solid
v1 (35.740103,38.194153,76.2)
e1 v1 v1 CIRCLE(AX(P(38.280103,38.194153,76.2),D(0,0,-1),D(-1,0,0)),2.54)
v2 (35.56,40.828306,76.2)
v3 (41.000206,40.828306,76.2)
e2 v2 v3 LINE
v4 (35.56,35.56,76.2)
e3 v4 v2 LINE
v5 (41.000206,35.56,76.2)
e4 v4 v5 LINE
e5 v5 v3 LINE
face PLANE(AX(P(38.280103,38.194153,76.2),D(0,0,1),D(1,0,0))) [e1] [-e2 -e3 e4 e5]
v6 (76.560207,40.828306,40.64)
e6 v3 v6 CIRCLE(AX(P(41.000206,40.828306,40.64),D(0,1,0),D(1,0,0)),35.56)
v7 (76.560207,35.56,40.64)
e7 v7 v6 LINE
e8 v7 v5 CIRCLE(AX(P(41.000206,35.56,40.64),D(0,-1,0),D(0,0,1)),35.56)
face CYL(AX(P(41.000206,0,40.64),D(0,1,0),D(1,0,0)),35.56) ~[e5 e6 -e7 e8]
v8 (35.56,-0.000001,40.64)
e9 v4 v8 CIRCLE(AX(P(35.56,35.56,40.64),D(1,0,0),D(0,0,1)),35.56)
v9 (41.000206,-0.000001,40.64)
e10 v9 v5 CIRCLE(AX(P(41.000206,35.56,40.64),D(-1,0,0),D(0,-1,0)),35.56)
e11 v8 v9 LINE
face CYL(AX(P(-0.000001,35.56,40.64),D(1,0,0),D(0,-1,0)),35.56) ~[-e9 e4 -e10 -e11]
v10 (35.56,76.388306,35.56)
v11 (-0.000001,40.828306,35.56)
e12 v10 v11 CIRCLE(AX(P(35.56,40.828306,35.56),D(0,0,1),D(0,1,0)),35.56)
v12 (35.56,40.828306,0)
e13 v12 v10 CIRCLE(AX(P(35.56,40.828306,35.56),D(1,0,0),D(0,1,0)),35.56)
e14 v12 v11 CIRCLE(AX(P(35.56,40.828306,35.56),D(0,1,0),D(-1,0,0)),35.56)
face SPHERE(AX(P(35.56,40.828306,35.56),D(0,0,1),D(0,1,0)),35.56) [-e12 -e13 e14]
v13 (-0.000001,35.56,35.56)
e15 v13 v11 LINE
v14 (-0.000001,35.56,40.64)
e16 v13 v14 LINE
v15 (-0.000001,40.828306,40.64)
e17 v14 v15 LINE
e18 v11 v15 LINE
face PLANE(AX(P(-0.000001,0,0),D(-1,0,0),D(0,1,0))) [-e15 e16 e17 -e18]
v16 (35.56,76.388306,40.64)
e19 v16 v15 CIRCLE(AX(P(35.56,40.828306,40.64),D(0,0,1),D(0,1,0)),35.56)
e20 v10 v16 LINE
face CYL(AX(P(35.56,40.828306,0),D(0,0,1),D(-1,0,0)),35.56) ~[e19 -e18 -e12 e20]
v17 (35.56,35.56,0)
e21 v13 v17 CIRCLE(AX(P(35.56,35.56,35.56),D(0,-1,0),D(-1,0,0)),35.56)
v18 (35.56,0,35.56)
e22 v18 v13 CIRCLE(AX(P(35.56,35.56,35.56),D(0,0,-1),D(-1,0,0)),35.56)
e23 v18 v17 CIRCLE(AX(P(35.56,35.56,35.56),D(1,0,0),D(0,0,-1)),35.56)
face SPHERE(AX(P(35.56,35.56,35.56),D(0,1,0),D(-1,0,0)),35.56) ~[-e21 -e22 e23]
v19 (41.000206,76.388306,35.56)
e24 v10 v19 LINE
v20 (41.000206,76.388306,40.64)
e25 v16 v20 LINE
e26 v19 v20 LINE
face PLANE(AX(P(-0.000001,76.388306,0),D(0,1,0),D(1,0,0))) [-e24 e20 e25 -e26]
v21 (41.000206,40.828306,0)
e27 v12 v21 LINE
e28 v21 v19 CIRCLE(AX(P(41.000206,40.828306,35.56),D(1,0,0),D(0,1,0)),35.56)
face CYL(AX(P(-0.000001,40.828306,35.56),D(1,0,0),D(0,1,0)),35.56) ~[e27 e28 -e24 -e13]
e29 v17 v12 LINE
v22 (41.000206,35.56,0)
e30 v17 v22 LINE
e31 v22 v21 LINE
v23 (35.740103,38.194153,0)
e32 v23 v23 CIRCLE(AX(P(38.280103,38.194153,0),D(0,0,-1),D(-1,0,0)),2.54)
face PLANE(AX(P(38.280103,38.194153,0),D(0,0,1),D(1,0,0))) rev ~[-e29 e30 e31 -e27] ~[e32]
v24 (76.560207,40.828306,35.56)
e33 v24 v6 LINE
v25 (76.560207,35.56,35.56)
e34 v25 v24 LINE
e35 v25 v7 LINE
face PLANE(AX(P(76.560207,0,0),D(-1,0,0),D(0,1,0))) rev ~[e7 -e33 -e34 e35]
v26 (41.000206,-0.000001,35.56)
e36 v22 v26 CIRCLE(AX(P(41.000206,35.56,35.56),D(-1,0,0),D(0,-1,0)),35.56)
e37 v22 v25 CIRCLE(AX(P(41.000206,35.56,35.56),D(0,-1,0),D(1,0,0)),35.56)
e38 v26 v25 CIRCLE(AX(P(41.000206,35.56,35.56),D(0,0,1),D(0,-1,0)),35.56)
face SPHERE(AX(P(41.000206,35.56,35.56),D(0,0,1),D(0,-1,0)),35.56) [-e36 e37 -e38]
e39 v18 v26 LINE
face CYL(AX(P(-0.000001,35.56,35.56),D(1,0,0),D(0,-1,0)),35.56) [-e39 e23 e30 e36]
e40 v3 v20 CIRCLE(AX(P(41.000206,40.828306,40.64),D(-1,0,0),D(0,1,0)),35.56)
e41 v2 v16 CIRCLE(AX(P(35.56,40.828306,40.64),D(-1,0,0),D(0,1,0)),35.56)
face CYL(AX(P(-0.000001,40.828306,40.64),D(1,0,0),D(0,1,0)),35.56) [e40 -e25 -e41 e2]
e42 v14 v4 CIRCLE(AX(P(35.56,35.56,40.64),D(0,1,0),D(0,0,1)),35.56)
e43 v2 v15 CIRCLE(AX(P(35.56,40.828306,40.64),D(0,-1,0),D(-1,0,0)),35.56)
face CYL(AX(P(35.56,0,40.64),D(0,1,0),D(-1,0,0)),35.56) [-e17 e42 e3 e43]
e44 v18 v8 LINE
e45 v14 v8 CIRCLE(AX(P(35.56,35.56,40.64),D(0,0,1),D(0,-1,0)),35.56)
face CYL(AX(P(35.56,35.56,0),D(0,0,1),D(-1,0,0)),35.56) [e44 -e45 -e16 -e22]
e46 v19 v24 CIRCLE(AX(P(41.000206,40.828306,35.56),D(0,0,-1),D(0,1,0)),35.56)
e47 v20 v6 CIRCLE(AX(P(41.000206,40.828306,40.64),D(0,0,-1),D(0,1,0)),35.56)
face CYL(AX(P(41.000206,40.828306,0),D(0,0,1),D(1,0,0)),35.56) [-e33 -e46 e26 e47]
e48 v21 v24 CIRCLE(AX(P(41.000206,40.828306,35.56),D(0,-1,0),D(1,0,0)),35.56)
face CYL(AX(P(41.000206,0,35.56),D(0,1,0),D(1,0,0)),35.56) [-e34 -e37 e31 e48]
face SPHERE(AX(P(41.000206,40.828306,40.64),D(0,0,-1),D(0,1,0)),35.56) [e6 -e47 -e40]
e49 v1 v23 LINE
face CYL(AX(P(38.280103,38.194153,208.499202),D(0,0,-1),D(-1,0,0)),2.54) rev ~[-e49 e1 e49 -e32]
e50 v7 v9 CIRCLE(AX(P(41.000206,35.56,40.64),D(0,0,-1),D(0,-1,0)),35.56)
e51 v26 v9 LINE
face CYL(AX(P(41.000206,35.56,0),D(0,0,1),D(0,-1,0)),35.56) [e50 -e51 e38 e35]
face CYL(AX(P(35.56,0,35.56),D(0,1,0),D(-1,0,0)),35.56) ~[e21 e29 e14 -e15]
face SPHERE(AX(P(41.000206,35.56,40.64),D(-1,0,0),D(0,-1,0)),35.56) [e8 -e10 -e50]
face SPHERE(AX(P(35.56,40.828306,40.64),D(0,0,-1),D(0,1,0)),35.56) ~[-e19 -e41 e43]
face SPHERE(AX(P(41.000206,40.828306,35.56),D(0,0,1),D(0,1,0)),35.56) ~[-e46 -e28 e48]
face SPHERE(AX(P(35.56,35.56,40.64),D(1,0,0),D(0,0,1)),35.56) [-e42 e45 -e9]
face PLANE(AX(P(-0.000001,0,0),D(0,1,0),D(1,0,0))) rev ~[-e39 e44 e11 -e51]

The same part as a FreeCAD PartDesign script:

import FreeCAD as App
import Part
import Sketcher

V = App.Vector
Q = App.Units.Quantity

doc = App.newDocument("Part")
body = doc.addObject("PartDesign::Body", "Body")

# Sketch on XY plane
sketch1 = body.newObject("Sketcher::SketchObject", "Sketch")
sketch1.AttachmentSupport = (doc.getObject("XY_Plane"), [""])
sketch1.MapMode = "FlatFace"
sketch1.addGeometry([
    Part.LineSegment(V(0, 76.388306, 0), V(0, 0, 0)),
    Part.LineSegment(V(0, 0, 0), V(76.560207, 0, 0)),
    Part.LineSegment(V(76.560207, 0, 0), V(76.560207, 76.388306, 0)),
    Part.LineSegment(V(76.560207, 76.388306, 0), V(0, 76.388306, 0)),
], False)
sketch1.addConstraint([
    Sketcher.Constraint("Coincident", 0, 2, 1, 1),
    Sketcher.Constraint("Coincident", 1, 2, 2, 1),
    Sketcher.Constraint("Coincident", 2, 2, 3, 1),
    Sketcher.Constraint("Coincident", 3, 2, 0, 1),
    Sketcher.Constraint("Vertical", 0),
    Sketcher.Constraint("Horizontal", 1),
    Sketcher.Constraint("Vertical", 2),
    Sketcher.Constraint("Horizontal", 3),
    Sketcher.Constraint("Coincident", 0, 2, -1, 1),
    Sketcher.Constraint("DistanceX", 1, 1, 1, 2, Q("76.560207 mm")),
    Sketcher.Constraint("DistanceY", 0, 2, 0, 1, Q("76.388307 mm")),
])
pad1 = body.newObject("PartDesign::Pad", "Pad")
pad1.Profile = sketch1
pad1.Length = Q("3 in")
doc.recompute()

fillet = body.newObject("PartDesign::Fillet", "Fillet")
fillet.Base = (pad1, ["Edge1"])
fillet.UseAllEdges = True
fillet.Radius = Q("1.4 in")

# Sketch on XY plane
sketch2 = body.newObject("Sketcher::SketchObject", "Sketch001")
sketch2.AttachmentSupport = (doc.getObject("XY_Plane"), [""])
sketch2.MapMode = "FlatFace"
sketch2.AttachmentOffset = App.Placement(V(0, 0, 3 * 25.4), App.Rotation())
sketch2.addGeometry(Part.Circle(V(38.280103, 38.194153, 0), V(0, 0, 1), 2.54), False)
sketch2.addConstraint([
    Sketcher.Constraint("Diameter", 0, Q("0.2 in")),
    Sketcher.Constraint("DistanceX", -1, 1, 0, 3, Q("38.280103 mm")),
    Sketcher.Constraint("DistanceY", -1, 1, 0, 3, Q("38.194153 mm")),
])
doc.recompute()
hole = body.newObject("PartDesign::Hole", "Hole")
hole.Profile = sketch2
hole.ThreadType = "None"
hole.Diameter = Q("0.2 in")
hole.DepthType = "ThroughAll"

doc.recompute()
